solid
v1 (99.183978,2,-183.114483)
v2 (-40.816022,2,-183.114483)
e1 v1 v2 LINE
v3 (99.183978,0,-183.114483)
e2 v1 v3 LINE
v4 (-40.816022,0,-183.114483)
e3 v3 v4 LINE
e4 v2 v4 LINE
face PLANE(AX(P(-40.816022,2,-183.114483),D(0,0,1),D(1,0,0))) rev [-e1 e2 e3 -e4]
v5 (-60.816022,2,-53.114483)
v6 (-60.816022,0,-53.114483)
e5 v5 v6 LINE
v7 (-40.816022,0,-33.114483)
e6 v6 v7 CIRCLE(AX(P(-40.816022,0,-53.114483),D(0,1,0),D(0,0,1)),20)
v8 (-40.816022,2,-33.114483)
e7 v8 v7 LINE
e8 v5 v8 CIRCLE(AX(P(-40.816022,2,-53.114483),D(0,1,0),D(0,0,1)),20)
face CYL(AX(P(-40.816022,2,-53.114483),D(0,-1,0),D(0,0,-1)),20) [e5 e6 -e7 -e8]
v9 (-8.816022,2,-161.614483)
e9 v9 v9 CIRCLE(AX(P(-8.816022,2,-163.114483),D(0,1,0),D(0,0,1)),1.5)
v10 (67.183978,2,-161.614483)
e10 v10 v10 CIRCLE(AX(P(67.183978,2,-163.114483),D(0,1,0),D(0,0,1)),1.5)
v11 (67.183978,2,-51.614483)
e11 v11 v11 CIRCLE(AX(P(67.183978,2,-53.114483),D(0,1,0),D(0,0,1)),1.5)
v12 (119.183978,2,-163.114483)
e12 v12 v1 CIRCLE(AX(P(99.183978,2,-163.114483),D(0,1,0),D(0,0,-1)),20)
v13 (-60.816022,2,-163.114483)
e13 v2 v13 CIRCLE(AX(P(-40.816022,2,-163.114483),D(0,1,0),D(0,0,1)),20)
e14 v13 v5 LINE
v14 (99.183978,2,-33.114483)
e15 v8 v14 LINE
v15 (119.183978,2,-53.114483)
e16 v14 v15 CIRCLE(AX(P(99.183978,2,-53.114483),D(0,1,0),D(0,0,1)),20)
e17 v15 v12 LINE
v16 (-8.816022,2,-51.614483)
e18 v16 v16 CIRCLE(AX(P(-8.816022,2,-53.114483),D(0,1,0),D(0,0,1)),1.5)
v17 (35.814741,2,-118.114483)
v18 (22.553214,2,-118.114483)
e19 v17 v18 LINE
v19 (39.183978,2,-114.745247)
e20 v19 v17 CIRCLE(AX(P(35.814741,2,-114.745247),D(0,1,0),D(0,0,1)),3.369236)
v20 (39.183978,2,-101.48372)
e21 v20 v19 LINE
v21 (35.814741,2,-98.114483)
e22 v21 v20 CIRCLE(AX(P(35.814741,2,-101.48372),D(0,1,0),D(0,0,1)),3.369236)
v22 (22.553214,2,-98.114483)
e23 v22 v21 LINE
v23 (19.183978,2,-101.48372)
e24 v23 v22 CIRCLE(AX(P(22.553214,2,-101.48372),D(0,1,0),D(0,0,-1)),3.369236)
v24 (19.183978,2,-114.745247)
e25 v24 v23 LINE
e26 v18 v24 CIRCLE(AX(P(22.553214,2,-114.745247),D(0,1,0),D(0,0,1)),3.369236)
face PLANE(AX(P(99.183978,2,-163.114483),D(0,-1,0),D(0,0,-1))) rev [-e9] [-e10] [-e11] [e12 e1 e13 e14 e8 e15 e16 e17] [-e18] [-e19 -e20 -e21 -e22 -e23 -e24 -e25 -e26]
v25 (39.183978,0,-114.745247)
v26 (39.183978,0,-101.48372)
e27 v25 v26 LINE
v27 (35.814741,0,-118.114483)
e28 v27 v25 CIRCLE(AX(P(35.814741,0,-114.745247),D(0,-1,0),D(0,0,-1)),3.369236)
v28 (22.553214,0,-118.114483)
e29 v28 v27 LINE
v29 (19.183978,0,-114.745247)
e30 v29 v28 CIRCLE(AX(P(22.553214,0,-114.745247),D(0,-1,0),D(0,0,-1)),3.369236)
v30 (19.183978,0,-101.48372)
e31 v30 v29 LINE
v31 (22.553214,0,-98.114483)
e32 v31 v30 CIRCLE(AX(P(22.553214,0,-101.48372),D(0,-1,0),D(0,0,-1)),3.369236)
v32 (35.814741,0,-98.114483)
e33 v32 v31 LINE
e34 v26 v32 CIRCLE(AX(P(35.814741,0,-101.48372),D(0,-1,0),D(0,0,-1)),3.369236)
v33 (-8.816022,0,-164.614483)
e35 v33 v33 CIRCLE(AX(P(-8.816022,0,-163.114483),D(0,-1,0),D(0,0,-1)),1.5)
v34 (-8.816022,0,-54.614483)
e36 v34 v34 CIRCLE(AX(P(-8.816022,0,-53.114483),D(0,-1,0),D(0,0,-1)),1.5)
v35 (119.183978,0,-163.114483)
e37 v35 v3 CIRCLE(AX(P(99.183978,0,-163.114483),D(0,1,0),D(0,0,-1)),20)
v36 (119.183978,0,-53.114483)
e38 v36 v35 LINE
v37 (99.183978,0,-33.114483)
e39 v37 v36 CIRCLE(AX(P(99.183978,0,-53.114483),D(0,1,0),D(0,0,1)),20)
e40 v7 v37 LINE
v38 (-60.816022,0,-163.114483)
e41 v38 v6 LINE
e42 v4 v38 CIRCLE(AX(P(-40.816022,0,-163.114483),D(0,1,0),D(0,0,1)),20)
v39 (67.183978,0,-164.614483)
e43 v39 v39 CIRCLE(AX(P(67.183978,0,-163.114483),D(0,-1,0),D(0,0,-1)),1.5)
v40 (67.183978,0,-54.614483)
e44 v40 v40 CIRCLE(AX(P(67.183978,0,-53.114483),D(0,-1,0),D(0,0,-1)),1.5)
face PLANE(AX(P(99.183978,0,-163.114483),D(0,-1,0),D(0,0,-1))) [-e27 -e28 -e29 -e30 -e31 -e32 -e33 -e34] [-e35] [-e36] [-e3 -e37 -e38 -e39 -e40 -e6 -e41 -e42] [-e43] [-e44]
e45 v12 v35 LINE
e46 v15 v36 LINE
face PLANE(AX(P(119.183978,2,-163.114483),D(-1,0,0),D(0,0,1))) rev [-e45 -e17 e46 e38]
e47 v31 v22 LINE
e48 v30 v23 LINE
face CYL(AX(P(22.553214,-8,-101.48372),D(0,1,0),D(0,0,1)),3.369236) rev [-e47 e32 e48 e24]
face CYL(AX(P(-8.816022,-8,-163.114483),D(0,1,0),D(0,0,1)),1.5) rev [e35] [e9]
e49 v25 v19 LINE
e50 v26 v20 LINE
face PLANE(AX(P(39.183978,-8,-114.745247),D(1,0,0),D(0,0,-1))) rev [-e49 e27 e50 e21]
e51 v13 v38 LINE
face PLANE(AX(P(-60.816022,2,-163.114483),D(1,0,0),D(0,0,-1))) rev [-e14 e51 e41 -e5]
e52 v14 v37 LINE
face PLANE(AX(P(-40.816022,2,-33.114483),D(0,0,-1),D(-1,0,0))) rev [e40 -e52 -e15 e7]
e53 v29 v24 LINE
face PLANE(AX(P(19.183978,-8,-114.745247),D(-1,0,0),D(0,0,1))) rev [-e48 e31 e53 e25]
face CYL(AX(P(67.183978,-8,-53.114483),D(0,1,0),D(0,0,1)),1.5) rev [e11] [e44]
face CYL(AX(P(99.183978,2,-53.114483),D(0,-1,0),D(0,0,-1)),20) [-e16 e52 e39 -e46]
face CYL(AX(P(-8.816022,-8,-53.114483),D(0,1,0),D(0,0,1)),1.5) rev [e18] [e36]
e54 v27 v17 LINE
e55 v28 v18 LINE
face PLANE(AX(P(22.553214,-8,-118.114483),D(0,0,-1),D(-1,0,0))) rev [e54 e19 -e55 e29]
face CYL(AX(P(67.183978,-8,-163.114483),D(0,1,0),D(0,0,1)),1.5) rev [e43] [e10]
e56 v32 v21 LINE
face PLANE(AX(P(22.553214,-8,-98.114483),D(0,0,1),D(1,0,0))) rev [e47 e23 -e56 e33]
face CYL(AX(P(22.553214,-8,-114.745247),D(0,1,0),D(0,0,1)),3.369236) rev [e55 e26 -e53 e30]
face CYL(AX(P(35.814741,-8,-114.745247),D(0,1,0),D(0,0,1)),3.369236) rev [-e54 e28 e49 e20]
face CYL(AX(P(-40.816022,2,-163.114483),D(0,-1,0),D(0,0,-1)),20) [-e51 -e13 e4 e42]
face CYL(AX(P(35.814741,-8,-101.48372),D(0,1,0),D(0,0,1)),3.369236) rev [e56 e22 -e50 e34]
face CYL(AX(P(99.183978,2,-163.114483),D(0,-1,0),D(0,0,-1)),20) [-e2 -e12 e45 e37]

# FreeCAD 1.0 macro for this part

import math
import FreeCAD as App
import Part
import Sketcher

V = App.Vector
Q = App.Units.Quantity

doc = App.newDocument("Part")
body = doc.addObject("PartDesign::Body", "Body")

# Sketch on XZ plane
sketch1 = body.newObject("Sketcher::SketchObject", "Sketch")
sketch1.AttachmentSupport = (doc.getObject("XZ_Plane"), [""])
sketch1.MapMode = "FlatFace"
sketch1.addGeometry(Part.LineSegment(V(99, -183, 0), V(-41, -183, 0)), False)
sketch1.addGeometry(Part.ArcOfCircle(Part.Circle(V(-41, -163, 0), V(0, 0, 1), 20), math.radians(180), math.radians(270)), False)
sketch1.addGeometry(Part.LineSegment(V(-61, -163, 0), V(-61, -53, 0)), False)
sketch1.addGeometry(Part.ArcOfCircle(Part.Circle(V(-41, -53, 0), V(0, 0, 1), 20), math.radians(90), math.radians(180)), False)
sketch1.addGeometry(Part.LineSegment(V(-41, -33, 0), V(99, -33, 0)), False)
sketch1.addGeometry(Part.ArcOfCircle(Part.Circle(V(99, -53, 0), V(0, 0, 1), 20), math.radians(0), math.radians(90)), False)
sketch1.addGeometry(Part.LineSegment(V(119, -53, 0), V(119, -163, 0)), False)
sketch1.addGeometry(Part.ArcOfCircle(Part.Circle(V(99, -163, 0), V(0, 0, 1), 20), math.radians(-90), math.radians(0)), False)
sketch1.addConstraint(Sketcher.Constraint("Tangent", 0, 2, 1, 2))
sketch1.addConstraint(Sketcher.Constraint("Tangent", 1, 1, 2, 1))
sketch1.addConstraint(Sketcher.Constraint("Tangent", 2, 2, 3, 2))
sketch1.addConstraint(Sketcher.Constraint("Tangent", 3, 1, 4, 1))
sketch1.addConstraint(Sketcher.Constraint("Tangent", 4, 2, 5, 2))
sketch1.addConstraint(Sketcher.Constraint("Tangent", 5, 1, 6, 1))
sketch1.addConstraint(Sketcher.Constraint("Tangent", 6, 2, 7, 2))
sketch1.addConstraint(Sketcher.Constraint("Tangent", 7, 1, 0, 1))
sketch1.addConstraint(Sketcher.Constraint("Horizontal", 0))
sketch1.addConstraint(Sketcher.Constraint("Vertical", 2))
sketch1.addConstraint(Sketcher.Constraint("Horizontal", 4))
sketch1.addConstraint(Sketcher.Constraint("Vertical", 6))
sketch1.addConstraint(Sketcher.Constraint("Equal", 1, 3))
sketch1.addConstraint(Sketcher.Constraint("Equal", 3, 5))
sketch1.addConstraint(Sketcher.Constraint("Equal", 5, 7))
sketch1.addConstraint(Sketcher.Constraint("Radius", 1, Q("20 mm")))
sketch1.addConstraint(Sketcher.Constraint("DistanceX", 0, 2, 0, 1, Q("140 mm")))
sketch1.addConstraint(Sketcher.Constraint("DistanceY", 2, 1, 2, 2, Q("110 mm")))
sketch1.addConstraint(Sketcher.Constraint("DistanceX", 1, 3, -1, 1, Q("40.816022 mm")))
sketch1.addConstraint(Sketcher.Constraint("DistanceY", 1, 3, -1, 1, Q("163.114483 mm")))
pad1 = body.newObject("PartDesign::Pad", "Pad")
pad1.Profile = sketch1
pad1.Length = 2
pad1.Reversed = True

# Sketch on XZ plane
sketch2 = body.newObject("Sketcher::SketchObject", "Sketch001")
sketch2.AttachmentSupport = (doc.getObject("XZ_Plane"), [""])
sketch2.MapMode = "FlatFace"
sketch2.AttachmentOffset = App.Placement(V(0, 0, -2), App.Rotation())
sketch2.addGeometry(Part.Circle(V(-8.8, -163.1, 0), V(0, 0, 1), 1.5), False)
sketch2.addGeometry(Part.Circle(V(67.2, -163.1, 0), V(0, 0, 1), 1.5), False)
sketch2.addGeometry(Part.Circle(V(67.2, -53.1, 0), V(0, 0, 1), 1.5), False)
sketch2.addGeometry(Part.Circle(V(-8.8, -53.1, 0), V(0, 0, 1), 1.5), False)
sketch2.addConstraint(Sketcher.Constraint("Equal", 0, 1))
sketch2.addConstraint(Sketcher.Constraint("Equal", 1, 2))
sketch2.addConstraint(Sketcher.Constraint("Equal", 2, 3))
sketch2.addConstraint(Sketcher.Constraint("Horizontal", 0, 3, 1, 3))
sketch2.addConstraint(Sketcher.Constraint("Horizontal", 2, 3, 3, 3))
sketch2.addConstraint(Sketcher.Constraint("Vertical", 1, 3, 2, 3))
sketch2.addConstraint(Sketcher.Constraint("Vertical", 0, 3, 3, 3))
sketch2.addConstraint(Sketcher.Constraint("Diameter", 0, Q("3 mm")))
sketch2.addConstraint(Sketcher.Constraint("DistanceX", 0, 3, 1, 3, Q("76 mm")))
sketch2.addConstraint(Sketcher.Constraint("DistanceY", 1, 3, 2, 3, Q("110 mm")))
sketch2.addConstraint(Sketcher.Constraint("DistanceX", 0, 3, -1, 1, Q("8.816022 mm")))
sketch2.addConstraint(Sketcher.Constraint("DistanceY", 0, 3, -1, 1, Q("163.114483 mm")))
pocket1 = body.newObject("PartDesign::Pocket", "Pocket")
pocket1.Profile = sketch2
pocket1.Length = 10
pocket1.Reversed = True

# Sketch on XZ plane
sketch3 = body.newObject("Sketcher::SketchObject", "Sketch002")
sketch3.AttachmentSupport = (doc.getObject("XZ_Plane"), [""])
sketch3.MapMode = "FlatFace"
sketch3.AttachmentOffset = App.Placement(V(0, 0, -2), App.Rotation())
sketch3.addGeometry(Part.LineSegment(V(35.8, -118.1, 0), V(22.6, -118.1, 0)), False)
sketch3.addGeometry(Part.ArcOfCircle(Part.Circle(V(22.6, -114.7, 0), V(0, 0, 1), 3.4), math.radians(180), math.radians(270)), False)
sketch3.addGeometry(Part.LineSegment(V(19.2, -114.7, 0), V(19.2, -101.5, 0)), False)
sketch3.addGeometry(Part.ArcOfCircle(Part.Circle(V(22.6, -101.5, 0), V(0, 0, 1), 3.4), math.radians(90), math.radians(180)), False)
sketch3.addGeometry(Part.LineSegment(V(22.6, -98.1, 0), V(35.8, -98.1, 0)), False)
sketch3.addGeometry(Part.ArcOfCircle(Part.Circle(V(35.8, -101.5, 0), V(0, 0, 1), 3.4), math.radians(0), math.radians(90)), False)
sketch3.addGeometry(Part.LineSegment(V(39.2, -101.5, 0), V(39.2, -114.7, 0)), False)
sketch3.addGeometry(Part.ArcOfCircle(Part.Circle(V(35.8, -114.7, 0), V(0, 0, 1), 3.4), math.radians(-90), math.radians(0)), False)
sketch3.addConstraint(Sketcher.Constraint("Tangent", 0, 2, 1, 2))
sketch3.addConstraint(Sketcher.Constraint("Tangent", 1, 1, 2, 1))
sketch3.addConstraint(Sketcher.Constraint("Tangent", 2, 2, 3, 2))
sketch3.addConstraint(Sketcher.Constraint("Tangent", 3, 1, 4, 1))
sketch3.addConstraint(Sketcher.Constraint("Tangent", 4, 2, 5, 2))
sketch3.addConstraint(Sketcher.Constraint("Tangent", 5, 1, 6, 1))
sketch3.addConstraint(Sketcher.Constraint("Tangent", 6, 2, 7, 2))
sketch3.addConstraint(Sketcher.Constraint("Tangent", 7, 1, 0, 1))
sketch3.addConstraint(Sketcher.Constraint("Horizontal", 0))
sketch3.addConstraint(Sketcher.Constraint("Vertical", 2))
sketch3.addConstraint(Sketcher.Constraint("Horizontal", 4))
sketch3.addConstraint(Sketcher.Constraint("Vertical", 6))
sketch3.addConstraint(Sketcher.Constraint("Equal", 1, 3))
sketch3.addConstraint(Sketcher.Constraint("Equal", 3, 5))
sketch3.addConstraint(Sketcher.Constraint("Equal", 5, 7))
sketch3.addConstraint(Sketcher.Constraint("Equal", 4, 2))
sketch3.addConstraint(Sketcher.Constraint("Radius", 1, Q("3.369236 mm")))
sketch3.addConstraint(Sketcher.Constraint("DistanceX", 0, 2, 0, 1, Q("13.261527 mm")))
sketch3.addConstraint(Sketcher.Constraint("DistanceY", 3, 3, -1, 1, Q("101.48372 mm")))
sketch3.addConstraint(Sketcher.Constraint("DistanceX", -1, 1, 5, 3, Q("35.814741 mm")))
pocket2 = body.newObject("PartDesign::Pocket", "Pocket001")
pocket2.Profile = sketch3
pocket2.Length = 10
pocket2.Reversed = True

doc.recompute()
